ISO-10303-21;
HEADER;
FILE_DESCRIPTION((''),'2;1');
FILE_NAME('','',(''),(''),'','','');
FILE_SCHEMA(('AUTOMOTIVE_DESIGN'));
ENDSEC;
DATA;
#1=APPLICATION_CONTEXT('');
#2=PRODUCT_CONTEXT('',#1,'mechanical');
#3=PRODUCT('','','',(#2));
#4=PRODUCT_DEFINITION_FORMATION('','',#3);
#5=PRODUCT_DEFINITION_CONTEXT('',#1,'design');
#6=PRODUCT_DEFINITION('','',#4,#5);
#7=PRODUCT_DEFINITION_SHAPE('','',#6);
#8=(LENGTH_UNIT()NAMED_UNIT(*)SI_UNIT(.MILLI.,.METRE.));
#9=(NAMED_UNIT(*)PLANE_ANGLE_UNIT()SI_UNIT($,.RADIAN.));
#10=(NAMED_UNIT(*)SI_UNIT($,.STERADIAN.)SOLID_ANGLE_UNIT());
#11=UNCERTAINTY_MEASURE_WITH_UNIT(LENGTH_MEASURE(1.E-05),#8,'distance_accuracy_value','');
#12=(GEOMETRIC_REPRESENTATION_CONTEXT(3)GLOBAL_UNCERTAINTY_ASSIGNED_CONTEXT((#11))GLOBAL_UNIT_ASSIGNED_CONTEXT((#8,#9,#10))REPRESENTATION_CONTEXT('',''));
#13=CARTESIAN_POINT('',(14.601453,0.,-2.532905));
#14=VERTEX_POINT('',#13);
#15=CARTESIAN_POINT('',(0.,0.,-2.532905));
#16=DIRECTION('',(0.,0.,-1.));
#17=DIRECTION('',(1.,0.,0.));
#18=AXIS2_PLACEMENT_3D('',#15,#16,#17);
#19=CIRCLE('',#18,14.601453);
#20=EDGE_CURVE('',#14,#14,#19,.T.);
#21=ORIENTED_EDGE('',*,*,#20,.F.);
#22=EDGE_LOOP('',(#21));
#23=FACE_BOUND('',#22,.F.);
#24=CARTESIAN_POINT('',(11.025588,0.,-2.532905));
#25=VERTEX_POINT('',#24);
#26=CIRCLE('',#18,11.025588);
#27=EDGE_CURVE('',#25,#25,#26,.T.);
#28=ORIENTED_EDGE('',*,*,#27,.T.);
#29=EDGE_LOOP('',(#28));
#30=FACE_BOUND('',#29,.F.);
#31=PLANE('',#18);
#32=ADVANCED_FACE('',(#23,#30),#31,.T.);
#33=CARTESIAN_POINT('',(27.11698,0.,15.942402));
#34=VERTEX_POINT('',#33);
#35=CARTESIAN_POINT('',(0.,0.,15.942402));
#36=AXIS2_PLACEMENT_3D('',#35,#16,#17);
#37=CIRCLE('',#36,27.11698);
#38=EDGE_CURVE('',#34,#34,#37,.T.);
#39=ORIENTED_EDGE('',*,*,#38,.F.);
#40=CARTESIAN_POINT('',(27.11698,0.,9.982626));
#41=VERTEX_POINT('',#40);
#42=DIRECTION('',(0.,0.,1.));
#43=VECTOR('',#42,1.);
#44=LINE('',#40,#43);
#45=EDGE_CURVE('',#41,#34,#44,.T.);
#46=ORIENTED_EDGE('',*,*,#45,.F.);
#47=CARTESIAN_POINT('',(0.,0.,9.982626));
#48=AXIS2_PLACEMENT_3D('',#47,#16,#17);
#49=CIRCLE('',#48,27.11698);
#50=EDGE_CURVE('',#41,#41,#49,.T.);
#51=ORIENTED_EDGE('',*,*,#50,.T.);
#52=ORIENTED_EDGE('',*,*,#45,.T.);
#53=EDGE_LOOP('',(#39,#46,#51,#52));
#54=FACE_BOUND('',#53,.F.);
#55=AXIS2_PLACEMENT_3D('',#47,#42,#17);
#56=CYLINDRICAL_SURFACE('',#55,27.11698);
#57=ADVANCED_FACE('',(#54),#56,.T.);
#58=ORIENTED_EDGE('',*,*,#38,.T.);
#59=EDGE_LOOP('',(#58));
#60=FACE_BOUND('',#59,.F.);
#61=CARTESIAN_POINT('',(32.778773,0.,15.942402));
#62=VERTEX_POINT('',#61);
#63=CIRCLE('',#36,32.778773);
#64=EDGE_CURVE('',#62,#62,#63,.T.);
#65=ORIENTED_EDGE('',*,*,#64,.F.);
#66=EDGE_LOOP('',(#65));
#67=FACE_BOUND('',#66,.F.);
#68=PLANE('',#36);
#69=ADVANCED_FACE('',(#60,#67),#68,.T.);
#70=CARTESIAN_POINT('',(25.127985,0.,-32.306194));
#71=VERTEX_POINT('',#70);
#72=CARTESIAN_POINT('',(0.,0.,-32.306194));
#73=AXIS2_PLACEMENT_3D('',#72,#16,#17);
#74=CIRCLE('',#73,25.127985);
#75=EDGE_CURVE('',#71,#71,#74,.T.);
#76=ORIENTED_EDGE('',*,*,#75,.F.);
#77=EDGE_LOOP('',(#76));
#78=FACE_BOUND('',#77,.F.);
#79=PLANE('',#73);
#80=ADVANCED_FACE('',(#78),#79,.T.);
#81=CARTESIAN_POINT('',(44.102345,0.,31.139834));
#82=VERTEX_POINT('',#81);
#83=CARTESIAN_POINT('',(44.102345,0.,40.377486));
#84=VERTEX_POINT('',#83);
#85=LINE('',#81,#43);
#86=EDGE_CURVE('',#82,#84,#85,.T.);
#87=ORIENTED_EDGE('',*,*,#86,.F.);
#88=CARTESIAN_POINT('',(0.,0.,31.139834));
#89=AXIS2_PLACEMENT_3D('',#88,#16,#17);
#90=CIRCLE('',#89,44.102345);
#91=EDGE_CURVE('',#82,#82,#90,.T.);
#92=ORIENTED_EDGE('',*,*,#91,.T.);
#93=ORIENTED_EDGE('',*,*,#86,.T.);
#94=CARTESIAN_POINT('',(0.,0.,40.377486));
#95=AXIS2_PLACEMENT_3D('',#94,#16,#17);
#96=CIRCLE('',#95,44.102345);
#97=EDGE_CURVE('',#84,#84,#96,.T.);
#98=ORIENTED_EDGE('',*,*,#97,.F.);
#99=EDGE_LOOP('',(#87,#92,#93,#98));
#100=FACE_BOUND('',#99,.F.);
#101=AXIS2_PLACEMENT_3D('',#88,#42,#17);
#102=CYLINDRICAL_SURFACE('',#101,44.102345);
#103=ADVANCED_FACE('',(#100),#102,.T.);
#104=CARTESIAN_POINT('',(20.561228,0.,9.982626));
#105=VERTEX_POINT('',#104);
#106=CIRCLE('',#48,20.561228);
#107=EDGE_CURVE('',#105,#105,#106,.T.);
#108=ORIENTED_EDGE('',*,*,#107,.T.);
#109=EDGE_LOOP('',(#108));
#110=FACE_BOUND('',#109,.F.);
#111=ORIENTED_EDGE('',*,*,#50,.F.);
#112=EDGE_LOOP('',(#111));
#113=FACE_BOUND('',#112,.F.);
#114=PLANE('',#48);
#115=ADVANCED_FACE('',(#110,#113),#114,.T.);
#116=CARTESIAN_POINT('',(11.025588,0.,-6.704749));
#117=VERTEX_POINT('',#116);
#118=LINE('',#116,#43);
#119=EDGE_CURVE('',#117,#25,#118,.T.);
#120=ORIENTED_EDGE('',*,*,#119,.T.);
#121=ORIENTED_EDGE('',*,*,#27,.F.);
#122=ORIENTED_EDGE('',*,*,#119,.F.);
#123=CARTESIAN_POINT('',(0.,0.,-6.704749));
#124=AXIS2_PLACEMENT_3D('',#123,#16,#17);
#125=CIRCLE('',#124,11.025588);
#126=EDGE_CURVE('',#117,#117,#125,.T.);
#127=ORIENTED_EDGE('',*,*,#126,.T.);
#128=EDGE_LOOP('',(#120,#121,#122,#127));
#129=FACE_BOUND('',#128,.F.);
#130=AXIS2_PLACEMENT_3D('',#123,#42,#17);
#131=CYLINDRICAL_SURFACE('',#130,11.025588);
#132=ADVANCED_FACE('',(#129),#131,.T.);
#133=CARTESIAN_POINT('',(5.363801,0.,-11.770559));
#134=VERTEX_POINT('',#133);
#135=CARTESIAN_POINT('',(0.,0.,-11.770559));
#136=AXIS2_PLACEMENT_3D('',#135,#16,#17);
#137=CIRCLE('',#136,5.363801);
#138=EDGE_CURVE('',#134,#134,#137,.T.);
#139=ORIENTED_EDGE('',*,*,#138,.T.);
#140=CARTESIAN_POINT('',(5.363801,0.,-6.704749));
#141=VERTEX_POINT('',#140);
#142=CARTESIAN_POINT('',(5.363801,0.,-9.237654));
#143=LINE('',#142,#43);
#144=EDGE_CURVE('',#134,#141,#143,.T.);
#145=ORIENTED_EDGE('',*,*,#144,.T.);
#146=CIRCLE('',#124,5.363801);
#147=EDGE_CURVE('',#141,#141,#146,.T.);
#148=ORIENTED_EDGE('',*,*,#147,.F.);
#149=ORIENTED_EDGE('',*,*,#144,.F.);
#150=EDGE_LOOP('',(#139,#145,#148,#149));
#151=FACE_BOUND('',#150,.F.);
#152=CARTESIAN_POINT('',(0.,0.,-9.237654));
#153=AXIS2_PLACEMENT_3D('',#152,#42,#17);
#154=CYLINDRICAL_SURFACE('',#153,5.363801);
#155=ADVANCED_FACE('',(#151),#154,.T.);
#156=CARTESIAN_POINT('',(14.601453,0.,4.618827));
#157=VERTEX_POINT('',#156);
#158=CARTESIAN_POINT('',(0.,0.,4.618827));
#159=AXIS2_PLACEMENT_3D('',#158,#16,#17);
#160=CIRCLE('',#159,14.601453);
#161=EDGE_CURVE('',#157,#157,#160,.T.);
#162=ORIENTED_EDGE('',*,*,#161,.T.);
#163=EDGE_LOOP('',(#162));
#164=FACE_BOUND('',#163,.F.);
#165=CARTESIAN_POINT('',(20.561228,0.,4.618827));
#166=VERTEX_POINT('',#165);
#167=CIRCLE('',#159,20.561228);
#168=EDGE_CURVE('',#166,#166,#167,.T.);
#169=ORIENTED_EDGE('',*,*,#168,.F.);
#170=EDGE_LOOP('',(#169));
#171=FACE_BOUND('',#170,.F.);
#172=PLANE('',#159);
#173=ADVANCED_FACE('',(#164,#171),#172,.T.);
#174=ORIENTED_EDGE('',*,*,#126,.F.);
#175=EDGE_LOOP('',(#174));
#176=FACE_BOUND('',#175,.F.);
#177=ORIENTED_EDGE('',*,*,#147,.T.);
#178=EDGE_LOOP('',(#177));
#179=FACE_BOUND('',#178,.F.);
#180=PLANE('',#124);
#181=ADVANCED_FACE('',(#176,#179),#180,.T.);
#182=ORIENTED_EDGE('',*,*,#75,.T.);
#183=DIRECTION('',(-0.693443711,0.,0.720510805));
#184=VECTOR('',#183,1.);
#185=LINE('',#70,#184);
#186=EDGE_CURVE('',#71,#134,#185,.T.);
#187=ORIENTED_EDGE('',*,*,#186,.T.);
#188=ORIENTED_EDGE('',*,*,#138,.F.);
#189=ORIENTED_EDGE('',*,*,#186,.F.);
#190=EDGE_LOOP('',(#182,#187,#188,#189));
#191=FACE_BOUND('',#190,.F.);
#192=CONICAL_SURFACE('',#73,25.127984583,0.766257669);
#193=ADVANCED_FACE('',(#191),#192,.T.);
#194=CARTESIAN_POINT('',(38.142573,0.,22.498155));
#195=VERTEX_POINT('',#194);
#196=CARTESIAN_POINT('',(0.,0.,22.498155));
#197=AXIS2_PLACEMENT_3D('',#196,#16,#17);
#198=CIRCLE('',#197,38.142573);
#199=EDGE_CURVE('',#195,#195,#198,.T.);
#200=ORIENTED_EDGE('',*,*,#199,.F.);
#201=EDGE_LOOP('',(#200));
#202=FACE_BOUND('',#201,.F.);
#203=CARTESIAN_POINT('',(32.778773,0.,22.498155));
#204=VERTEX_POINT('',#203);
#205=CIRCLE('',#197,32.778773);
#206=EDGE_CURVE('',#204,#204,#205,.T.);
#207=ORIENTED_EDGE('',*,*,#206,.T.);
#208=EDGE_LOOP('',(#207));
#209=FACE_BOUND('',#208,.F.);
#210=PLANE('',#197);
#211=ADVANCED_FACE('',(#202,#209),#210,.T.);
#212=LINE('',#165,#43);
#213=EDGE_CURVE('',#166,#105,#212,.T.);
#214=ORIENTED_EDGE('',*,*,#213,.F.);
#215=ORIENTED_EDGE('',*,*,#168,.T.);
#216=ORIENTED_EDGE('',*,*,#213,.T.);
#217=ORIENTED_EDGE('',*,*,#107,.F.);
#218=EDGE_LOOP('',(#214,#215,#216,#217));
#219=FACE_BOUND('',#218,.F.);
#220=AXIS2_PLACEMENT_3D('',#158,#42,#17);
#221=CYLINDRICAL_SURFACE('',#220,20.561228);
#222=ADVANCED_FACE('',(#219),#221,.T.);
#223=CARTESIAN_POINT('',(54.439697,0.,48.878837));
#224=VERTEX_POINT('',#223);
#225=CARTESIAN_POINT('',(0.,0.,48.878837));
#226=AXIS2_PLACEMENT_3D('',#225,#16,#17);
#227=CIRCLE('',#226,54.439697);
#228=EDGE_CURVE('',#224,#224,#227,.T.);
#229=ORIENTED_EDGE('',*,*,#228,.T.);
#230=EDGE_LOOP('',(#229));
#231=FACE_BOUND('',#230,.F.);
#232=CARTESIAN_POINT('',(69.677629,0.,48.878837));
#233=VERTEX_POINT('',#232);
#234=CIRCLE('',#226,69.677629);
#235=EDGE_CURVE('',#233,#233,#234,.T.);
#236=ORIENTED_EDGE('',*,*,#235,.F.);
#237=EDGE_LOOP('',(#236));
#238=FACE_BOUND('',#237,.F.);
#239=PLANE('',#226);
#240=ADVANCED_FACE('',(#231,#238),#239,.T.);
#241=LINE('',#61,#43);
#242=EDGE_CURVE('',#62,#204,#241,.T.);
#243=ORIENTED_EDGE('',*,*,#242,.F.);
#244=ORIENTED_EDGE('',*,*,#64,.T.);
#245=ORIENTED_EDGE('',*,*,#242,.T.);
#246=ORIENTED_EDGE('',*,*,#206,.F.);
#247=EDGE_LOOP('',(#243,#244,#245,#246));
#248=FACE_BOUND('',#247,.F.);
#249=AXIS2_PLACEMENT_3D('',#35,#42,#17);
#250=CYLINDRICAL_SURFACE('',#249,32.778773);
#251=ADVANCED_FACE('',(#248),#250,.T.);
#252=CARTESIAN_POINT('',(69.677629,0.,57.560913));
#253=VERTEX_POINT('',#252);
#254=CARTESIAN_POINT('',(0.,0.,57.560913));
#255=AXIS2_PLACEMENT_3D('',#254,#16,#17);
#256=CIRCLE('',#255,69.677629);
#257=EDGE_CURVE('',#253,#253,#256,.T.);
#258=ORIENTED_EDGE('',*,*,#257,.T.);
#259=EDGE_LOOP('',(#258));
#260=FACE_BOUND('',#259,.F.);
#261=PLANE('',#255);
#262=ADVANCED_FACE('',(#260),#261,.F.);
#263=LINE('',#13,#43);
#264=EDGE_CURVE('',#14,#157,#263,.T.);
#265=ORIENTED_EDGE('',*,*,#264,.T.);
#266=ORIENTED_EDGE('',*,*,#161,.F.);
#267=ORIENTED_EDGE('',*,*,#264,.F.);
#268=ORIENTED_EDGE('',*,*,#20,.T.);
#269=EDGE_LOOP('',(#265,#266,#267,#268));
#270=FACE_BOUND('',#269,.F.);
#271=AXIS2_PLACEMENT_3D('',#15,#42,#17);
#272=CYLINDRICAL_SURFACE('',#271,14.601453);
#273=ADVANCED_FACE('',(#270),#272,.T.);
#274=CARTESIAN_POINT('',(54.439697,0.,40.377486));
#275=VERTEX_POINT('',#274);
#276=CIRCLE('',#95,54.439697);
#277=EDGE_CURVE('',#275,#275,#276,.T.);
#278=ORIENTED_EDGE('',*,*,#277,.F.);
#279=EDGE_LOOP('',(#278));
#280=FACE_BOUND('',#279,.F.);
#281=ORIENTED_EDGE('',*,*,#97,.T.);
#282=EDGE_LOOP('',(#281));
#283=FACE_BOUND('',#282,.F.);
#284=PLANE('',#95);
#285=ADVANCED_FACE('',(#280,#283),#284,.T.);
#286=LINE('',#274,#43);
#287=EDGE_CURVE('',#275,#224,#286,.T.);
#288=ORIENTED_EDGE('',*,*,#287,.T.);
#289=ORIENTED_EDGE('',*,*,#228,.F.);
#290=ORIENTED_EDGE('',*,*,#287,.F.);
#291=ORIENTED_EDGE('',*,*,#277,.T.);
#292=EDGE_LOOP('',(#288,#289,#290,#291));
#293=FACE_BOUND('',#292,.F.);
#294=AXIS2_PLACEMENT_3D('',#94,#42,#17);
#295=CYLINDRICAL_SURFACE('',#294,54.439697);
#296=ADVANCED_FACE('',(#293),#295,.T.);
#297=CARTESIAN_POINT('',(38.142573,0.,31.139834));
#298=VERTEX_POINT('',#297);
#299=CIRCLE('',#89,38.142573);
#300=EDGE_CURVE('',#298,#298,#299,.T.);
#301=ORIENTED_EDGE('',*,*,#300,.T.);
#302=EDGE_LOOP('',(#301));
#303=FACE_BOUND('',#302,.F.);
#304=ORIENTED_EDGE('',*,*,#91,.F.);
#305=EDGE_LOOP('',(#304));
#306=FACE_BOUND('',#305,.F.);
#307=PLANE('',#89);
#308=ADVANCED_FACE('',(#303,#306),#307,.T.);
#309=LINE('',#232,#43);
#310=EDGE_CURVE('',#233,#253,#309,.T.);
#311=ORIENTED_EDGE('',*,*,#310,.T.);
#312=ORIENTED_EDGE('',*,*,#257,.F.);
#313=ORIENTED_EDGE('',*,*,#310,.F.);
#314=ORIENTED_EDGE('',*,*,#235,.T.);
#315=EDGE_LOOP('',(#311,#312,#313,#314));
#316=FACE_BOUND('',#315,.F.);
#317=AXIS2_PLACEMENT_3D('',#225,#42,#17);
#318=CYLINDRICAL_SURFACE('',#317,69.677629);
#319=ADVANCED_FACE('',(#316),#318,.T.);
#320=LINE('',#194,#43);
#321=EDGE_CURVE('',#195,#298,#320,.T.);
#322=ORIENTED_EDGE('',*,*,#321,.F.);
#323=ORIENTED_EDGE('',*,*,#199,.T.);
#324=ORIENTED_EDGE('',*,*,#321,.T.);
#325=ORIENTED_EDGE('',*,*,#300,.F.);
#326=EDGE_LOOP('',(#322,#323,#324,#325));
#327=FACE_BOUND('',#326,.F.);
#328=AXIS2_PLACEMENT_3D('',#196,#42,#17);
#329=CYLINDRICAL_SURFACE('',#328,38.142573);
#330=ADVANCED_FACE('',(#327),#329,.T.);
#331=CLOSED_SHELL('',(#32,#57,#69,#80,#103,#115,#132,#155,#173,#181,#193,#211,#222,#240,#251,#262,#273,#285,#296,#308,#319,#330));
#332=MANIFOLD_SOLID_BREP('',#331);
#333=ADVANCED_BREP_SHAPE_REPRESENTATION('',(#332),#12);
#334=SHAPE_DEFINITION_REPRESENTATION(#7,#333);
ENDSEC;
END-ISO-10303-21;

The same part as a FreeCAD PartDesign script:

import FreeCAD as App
import Part
import Sketcher
from FreeCAD import Vector

doc = App.newDocument("Part")
params = doc.addObject("Spreadsheet::Sheet", "Params")
for row, (alias, value) in enumerate([
    ("revolution_angle", "360 deg"),
], start=1):
    params.set(f"A{row}", alias)
    params.set(f"B{row}", "=" + value)
    params.setAlias(f"B{row}", alias)

body = doc.addObject("PartDesign::Body", "Body")

sketch1 = doc.addObject("Sketcher::SketchObject", "Sketch")
body.addObject(sketch1)
sketch1.AttachmentSupport = (doc.XZ_Plane, [""])
sketch1.MapMode = "FlatFace"
sketch1.addGeometry(Part.LineSegment(Vector(0, 57.6, 0), Vector(0, -32.3, 0)), False)
sketch1.addGeometry(Part.LineSegment(Vector(0, -32.3, 0), Vector(25.1, -32.3, 0)), False)
sketch1.addGeometry(Part.LineSegment(Vector(25.1, -32.3, 0), Vector(5.4, -11.8, 0)), False)
sketch1.addGeometry(Part.LineSegment(Vector(5.4, -11.8, 0), Vector(5.4, -6.7, 0)), False)
sketch1.addGeometry(Part.LineSegment(Vector(5.4, -6.7, 0), Vector(11, -6.7, 0)), False)
sketch1.addGeometry(Part.LineSegment(Vector(11, -6.7, 0), Vector(11, -2.5, 0)), False)
sketch1.addGeometry(Part.LineSegment(Vector(11, -2.5, 0), Vector(14.6, -2.5, 0)), False)
sketch1.addGeometry(Part.LineSegment(Vector(14.6, -2.5, 0), Vector(14.6, 4.6, 0)), False)
sketch1.addGeometry(Part.LineSegment(Vector(14.6, 4.6, 0), Vector(20.6, 4.6, 0)), False)
sketch1.addGeometry(Part.LineSegment(Vector(20.6, 4.6, 0), Vector(20.6, 10, 0)), False)
sketch1.addGeometry(Part.LineSegment(Vector(20.6, 10, 0), Vector(27.1, 10, 0)), False)
sketch1.addGeometry(Part.LineSegment(Vector(27.1, 10, 0), Vector(27.1, 15.9, 0)), False)
sketch1.addGeometry(Part.LineSegment(Vector(27.1, 15.9, 0), Vector(32.8, 15.9, 0)), False)
sketch1.addGeometry(Part.LineSegment(Vector(32.8, 15.9, 0), Vector(32.8, 22.5, 0)), False)
sketch1.addGeometry(Part.LineSegment(Vector(32.8, 22.5, 0), Vector(38.1, 22.5, 0)), False)
sketch1.addGeometry(Part.LineSegment(Vector(38.1, 22.5, 0), Vector(38.1, 31.1, 0)), False)
sketch1.addGeometry(Part.LineSegment(Vector(38.1, 31.1, 0), Vector(44.1, 31.1, 0)), False)
sketch1.addGeometry(Part.LineSegment(Vector(44.1, 31.1, 0), Vector(44.1, 40.4, 0)), False)
sketch1.addGeometry(Part.LineSegment(Vector(44.1, 40.4, 0), Vector(54.4, 40.4, 0)), False)
sketch1.addGeometry(Part.LineSegment(Vector(54.4, 40.4, 0), Vector(54.4, 48.9, 0)), False)
sketch1.addGeometry(Part.LineSegment(Vector(54.4, 48.9, 0), Vector(69.7, 48.9, 0)), False)
sketch1.addGeometry(Part.LineSegment(Vector(69.7, 48.9, 0), Vector(69.7, 57.6, 0)), False)
sketch1.addGeometry(Part.LineSegment(Vector(69.7, 57.6, 0), Vector(0, 57.6, 0)), False)
sketch1.addConstraint(Sketcher.Constraint("Coincident", 0, 2, 1, 1))
sketch1.addConstraint(Sketcher.Constraint("Coincident", 1, 2, 2, 1))
sketch1.addConstraint(Sketcher.Constraint("Coincident", 2, 2, 3, 1))
sketch1.addConstraint(Sketcher.Constraint("Coincident", 3, 2, 4, 1))
sketch1.addConstraint(Sketcher.Constraint("Coincident", 4, 2, 5, 1))
sketch1.addConstraint(Sketcher.Constraint("Coincident", 5, 2, 6, 1))
sketch1.addConstraint(Sketcher.Constraint("Coincident", 6, 2, 7, 1))
sketch1.addConstraint(Sketcher.Constraint("Coincident", 7, 2, 8, 1))
sketch1.addConstraint(Sketcher.Constraint("Coincident", 8, 2, 9, 1))
sketch1.addConstraint(Sketcher.Constraint("Coincident", 9, 2, 10, 1))
sketch1.addConstraint(Sketcher.Constraint("Coincident", 10, 2, 11, 1))
sketch1.addConstraint(Sketcher.Constraint("Coincident", 11, 2, 12, 1))
sketch1.addConstraint(Sketcher.Constraint("Coincident", 12, 2, 13, 1))
sketch1.addConstraint(Sketcher.Constraint("Coincident", 13, 2, 14, 1))
sketch1.addConstraint(Sketcher.Constraint("Coincident", 14, 2, 15, 1))
sketch1.addConstraint(Sketcher.Constraint("Coincident", 15, 2, 16, 1))
sketch1.addConstraint(Sketcher.Constraint("Coincident", 16, 2, 17, 1))
sketch1.addConstraint(Sketcher.Constraint("Coincident", 17, 2, 18, 1))
sketch1.addConstraint(Sketcher.Constraint("Coincident", 18, 2, 19, 1))
sketch1.addConstraint(Sketcher.Constraint("Coincident", 19, 2, 20, 1))
sketch1.addConstraint(Sketcher.Constraint("Coincident", 20, 2, 21, 1))
sketch1.addConstraint(Sketcher.Constraint("Coincident", 21, 2, 22, 1))
sketch1.addConstraint(Sketcher.Constraint("Coincident", 22, 2, 0, 1))
sketch1.addConstraint(Sketcher.Constraint("Vertical", 0))
sketch1.addConstraint(Sketcher.Constraint("Horizontal", 1))
sketch1.addConstraint(Sketcher.Constraint("Vertical", 3))
sketch1.addConstraint(Sketcher.Constraint("Horizontal", 4))
sketch1.addConstraint(Sketcher.Constraint("Vertical", 5))
sketch1.addConstraint(Sketcher.Constraint("Horizontal", 6))
sketch1.addConstraint(Sketcher.Constraint("Vertical", 7))
sketch1.addConstraint(Sketcher.Constraint("Horizontal", 8))
sketch1.addConstraint(Sketcher.Constraint("Vertical", 9))
sketch1.addConstraint(Sketcher.Constraint("Horizontal", 10))
sketch1.addConstraint(Sketcher.Constraint("Vertical", 11))
sketch1.addConstraint(Sketcher.Constraint("Horizontal", 12))
sketch1.addConstraint(Sketcher.Constraint("Vertical", 13))
sketch1.addConstraint(Sketcher.Constraint("Horizontal", 14))
sketch1.addConstraint(Sketcher.Constraint("Vertical", 15))
sketch1.addConstraint(Sketcher.Constraint("Horizontal", 16))
sketch1.addConstraint(Sketcher.Constraint("Vertical", 17))
sketch1.addConstraint(Sketcher.Constraint("Horizontal", 18))
sketch1.addConstraint(Sketcher.Constraint("Vertical", 19))
sketch1.addConstraint(Sketcher.Constraint("Horizontal", 20))
sketch1.addConstraint(Sketcher.Constraint("Vertical", 21))
sketch1.addConstraint(Sketcher.Constraint("Horizontal", 22))
sketch1.addConstraint(Sketcher.Constraint("PointOnObject", 0, 2, -2))
sketch1.addConstraint(Sketcher.Constraint("Equal", 14, 9))
sketch1.addConstraint(Sketcher.Constraint("Equal", 8, 11))
sketch1.addConstraint(Sketcher.Constraint("Equal", 10, 13))
sketch1.addConstraint(Sketcher.Constraint("DistanceX", 14, 1, 14, 2, 5.3638))
sketch1.addConstraint(Sketcher.Constraint("DistanceX", 16, 1, 16, 2, 5.959772))
sketch1.addConstraint(Sketcher.Constraint("DistanceX", 20, 1, 20, 2, 15.237931))
sketch1.addConstraint(Sketcher.Constraint("DistanceX", 22, 2, 22, 1, 69.677629))
sketch1.addConstraint(Sketcher.Constraint("DistanceY", 3, 1, 3, 2, 5.065809))
sketch1.addConstraint(Sketcher.Constraint("DistanceY", 7, 1, 7, 2, 7.151732))
sketch1.addConstraint(Sketcher.Constraint("DistanceY", 15, 1, 15, 2, 8.641679))
sketch1.addConstraint(Sketcher.Constraint("DistanceY", 19, 1, 19, 2, 8.501351))
sketch1.addConstraint(Sketcher.Constraint("DistanceX", -1, 1, 2, 2, 5.363801))
sketch1.addConstraint(Sketcher.Constraint("DistanceX", 1, 1, 1, 2, 25.127985))
sketch1.addConstraint(Sketcher.Constraint("DistanceX", 4, 1, 4, 2, 5.661787))
sketch1.addConstraint(Sketcher.Constraint("DistanceX", 6, 1, 6, 2, 3.575865))
sketch1.addConstraint(Sketcher.Constraint("DistanceX", 8, 1, 8, 2, 5.959774))
sketch1.addConstraint(Sketcher.Constraint("DistanceX", 10, 1, 10, 2, 6.555753))
sketch1.addConstraint(Sketcher.Constraint("DistanceX", 12, 1, 12, 2, 5.661793))
sketch1.addConstraint(Sketcher.Constraint("DistanceY", 0, 2, 0, 1, 89.867108))
sketch1.addConstraint(Sketcher.Constraint("DistanceY", 5, 1, 5, 2, 4.171844))
sketch1.addConstraint(Sketcher.Constraint("DistanceY", 17, 1, 17, 2, 9.237653))
sketch1.addConstraint(Sketcher.Constraint("DistanceY", 21, 1, 21, 2, 8.682076))
sketch1.addConstraint(Sketcher.Constraint("DistanceY", 2, 2, -1, 1, 11.770559))
revolution = doc.addObject("PartDesign::Revolution", "Revolution")
body.addObject(revolution)
revolution.Profile = sketch1
revolution.ReferenceAxis = (sketch1, ["V_Axis"])
revolution.setExpression("Angle", "Params.revolution_angle")

doc.recompute()
